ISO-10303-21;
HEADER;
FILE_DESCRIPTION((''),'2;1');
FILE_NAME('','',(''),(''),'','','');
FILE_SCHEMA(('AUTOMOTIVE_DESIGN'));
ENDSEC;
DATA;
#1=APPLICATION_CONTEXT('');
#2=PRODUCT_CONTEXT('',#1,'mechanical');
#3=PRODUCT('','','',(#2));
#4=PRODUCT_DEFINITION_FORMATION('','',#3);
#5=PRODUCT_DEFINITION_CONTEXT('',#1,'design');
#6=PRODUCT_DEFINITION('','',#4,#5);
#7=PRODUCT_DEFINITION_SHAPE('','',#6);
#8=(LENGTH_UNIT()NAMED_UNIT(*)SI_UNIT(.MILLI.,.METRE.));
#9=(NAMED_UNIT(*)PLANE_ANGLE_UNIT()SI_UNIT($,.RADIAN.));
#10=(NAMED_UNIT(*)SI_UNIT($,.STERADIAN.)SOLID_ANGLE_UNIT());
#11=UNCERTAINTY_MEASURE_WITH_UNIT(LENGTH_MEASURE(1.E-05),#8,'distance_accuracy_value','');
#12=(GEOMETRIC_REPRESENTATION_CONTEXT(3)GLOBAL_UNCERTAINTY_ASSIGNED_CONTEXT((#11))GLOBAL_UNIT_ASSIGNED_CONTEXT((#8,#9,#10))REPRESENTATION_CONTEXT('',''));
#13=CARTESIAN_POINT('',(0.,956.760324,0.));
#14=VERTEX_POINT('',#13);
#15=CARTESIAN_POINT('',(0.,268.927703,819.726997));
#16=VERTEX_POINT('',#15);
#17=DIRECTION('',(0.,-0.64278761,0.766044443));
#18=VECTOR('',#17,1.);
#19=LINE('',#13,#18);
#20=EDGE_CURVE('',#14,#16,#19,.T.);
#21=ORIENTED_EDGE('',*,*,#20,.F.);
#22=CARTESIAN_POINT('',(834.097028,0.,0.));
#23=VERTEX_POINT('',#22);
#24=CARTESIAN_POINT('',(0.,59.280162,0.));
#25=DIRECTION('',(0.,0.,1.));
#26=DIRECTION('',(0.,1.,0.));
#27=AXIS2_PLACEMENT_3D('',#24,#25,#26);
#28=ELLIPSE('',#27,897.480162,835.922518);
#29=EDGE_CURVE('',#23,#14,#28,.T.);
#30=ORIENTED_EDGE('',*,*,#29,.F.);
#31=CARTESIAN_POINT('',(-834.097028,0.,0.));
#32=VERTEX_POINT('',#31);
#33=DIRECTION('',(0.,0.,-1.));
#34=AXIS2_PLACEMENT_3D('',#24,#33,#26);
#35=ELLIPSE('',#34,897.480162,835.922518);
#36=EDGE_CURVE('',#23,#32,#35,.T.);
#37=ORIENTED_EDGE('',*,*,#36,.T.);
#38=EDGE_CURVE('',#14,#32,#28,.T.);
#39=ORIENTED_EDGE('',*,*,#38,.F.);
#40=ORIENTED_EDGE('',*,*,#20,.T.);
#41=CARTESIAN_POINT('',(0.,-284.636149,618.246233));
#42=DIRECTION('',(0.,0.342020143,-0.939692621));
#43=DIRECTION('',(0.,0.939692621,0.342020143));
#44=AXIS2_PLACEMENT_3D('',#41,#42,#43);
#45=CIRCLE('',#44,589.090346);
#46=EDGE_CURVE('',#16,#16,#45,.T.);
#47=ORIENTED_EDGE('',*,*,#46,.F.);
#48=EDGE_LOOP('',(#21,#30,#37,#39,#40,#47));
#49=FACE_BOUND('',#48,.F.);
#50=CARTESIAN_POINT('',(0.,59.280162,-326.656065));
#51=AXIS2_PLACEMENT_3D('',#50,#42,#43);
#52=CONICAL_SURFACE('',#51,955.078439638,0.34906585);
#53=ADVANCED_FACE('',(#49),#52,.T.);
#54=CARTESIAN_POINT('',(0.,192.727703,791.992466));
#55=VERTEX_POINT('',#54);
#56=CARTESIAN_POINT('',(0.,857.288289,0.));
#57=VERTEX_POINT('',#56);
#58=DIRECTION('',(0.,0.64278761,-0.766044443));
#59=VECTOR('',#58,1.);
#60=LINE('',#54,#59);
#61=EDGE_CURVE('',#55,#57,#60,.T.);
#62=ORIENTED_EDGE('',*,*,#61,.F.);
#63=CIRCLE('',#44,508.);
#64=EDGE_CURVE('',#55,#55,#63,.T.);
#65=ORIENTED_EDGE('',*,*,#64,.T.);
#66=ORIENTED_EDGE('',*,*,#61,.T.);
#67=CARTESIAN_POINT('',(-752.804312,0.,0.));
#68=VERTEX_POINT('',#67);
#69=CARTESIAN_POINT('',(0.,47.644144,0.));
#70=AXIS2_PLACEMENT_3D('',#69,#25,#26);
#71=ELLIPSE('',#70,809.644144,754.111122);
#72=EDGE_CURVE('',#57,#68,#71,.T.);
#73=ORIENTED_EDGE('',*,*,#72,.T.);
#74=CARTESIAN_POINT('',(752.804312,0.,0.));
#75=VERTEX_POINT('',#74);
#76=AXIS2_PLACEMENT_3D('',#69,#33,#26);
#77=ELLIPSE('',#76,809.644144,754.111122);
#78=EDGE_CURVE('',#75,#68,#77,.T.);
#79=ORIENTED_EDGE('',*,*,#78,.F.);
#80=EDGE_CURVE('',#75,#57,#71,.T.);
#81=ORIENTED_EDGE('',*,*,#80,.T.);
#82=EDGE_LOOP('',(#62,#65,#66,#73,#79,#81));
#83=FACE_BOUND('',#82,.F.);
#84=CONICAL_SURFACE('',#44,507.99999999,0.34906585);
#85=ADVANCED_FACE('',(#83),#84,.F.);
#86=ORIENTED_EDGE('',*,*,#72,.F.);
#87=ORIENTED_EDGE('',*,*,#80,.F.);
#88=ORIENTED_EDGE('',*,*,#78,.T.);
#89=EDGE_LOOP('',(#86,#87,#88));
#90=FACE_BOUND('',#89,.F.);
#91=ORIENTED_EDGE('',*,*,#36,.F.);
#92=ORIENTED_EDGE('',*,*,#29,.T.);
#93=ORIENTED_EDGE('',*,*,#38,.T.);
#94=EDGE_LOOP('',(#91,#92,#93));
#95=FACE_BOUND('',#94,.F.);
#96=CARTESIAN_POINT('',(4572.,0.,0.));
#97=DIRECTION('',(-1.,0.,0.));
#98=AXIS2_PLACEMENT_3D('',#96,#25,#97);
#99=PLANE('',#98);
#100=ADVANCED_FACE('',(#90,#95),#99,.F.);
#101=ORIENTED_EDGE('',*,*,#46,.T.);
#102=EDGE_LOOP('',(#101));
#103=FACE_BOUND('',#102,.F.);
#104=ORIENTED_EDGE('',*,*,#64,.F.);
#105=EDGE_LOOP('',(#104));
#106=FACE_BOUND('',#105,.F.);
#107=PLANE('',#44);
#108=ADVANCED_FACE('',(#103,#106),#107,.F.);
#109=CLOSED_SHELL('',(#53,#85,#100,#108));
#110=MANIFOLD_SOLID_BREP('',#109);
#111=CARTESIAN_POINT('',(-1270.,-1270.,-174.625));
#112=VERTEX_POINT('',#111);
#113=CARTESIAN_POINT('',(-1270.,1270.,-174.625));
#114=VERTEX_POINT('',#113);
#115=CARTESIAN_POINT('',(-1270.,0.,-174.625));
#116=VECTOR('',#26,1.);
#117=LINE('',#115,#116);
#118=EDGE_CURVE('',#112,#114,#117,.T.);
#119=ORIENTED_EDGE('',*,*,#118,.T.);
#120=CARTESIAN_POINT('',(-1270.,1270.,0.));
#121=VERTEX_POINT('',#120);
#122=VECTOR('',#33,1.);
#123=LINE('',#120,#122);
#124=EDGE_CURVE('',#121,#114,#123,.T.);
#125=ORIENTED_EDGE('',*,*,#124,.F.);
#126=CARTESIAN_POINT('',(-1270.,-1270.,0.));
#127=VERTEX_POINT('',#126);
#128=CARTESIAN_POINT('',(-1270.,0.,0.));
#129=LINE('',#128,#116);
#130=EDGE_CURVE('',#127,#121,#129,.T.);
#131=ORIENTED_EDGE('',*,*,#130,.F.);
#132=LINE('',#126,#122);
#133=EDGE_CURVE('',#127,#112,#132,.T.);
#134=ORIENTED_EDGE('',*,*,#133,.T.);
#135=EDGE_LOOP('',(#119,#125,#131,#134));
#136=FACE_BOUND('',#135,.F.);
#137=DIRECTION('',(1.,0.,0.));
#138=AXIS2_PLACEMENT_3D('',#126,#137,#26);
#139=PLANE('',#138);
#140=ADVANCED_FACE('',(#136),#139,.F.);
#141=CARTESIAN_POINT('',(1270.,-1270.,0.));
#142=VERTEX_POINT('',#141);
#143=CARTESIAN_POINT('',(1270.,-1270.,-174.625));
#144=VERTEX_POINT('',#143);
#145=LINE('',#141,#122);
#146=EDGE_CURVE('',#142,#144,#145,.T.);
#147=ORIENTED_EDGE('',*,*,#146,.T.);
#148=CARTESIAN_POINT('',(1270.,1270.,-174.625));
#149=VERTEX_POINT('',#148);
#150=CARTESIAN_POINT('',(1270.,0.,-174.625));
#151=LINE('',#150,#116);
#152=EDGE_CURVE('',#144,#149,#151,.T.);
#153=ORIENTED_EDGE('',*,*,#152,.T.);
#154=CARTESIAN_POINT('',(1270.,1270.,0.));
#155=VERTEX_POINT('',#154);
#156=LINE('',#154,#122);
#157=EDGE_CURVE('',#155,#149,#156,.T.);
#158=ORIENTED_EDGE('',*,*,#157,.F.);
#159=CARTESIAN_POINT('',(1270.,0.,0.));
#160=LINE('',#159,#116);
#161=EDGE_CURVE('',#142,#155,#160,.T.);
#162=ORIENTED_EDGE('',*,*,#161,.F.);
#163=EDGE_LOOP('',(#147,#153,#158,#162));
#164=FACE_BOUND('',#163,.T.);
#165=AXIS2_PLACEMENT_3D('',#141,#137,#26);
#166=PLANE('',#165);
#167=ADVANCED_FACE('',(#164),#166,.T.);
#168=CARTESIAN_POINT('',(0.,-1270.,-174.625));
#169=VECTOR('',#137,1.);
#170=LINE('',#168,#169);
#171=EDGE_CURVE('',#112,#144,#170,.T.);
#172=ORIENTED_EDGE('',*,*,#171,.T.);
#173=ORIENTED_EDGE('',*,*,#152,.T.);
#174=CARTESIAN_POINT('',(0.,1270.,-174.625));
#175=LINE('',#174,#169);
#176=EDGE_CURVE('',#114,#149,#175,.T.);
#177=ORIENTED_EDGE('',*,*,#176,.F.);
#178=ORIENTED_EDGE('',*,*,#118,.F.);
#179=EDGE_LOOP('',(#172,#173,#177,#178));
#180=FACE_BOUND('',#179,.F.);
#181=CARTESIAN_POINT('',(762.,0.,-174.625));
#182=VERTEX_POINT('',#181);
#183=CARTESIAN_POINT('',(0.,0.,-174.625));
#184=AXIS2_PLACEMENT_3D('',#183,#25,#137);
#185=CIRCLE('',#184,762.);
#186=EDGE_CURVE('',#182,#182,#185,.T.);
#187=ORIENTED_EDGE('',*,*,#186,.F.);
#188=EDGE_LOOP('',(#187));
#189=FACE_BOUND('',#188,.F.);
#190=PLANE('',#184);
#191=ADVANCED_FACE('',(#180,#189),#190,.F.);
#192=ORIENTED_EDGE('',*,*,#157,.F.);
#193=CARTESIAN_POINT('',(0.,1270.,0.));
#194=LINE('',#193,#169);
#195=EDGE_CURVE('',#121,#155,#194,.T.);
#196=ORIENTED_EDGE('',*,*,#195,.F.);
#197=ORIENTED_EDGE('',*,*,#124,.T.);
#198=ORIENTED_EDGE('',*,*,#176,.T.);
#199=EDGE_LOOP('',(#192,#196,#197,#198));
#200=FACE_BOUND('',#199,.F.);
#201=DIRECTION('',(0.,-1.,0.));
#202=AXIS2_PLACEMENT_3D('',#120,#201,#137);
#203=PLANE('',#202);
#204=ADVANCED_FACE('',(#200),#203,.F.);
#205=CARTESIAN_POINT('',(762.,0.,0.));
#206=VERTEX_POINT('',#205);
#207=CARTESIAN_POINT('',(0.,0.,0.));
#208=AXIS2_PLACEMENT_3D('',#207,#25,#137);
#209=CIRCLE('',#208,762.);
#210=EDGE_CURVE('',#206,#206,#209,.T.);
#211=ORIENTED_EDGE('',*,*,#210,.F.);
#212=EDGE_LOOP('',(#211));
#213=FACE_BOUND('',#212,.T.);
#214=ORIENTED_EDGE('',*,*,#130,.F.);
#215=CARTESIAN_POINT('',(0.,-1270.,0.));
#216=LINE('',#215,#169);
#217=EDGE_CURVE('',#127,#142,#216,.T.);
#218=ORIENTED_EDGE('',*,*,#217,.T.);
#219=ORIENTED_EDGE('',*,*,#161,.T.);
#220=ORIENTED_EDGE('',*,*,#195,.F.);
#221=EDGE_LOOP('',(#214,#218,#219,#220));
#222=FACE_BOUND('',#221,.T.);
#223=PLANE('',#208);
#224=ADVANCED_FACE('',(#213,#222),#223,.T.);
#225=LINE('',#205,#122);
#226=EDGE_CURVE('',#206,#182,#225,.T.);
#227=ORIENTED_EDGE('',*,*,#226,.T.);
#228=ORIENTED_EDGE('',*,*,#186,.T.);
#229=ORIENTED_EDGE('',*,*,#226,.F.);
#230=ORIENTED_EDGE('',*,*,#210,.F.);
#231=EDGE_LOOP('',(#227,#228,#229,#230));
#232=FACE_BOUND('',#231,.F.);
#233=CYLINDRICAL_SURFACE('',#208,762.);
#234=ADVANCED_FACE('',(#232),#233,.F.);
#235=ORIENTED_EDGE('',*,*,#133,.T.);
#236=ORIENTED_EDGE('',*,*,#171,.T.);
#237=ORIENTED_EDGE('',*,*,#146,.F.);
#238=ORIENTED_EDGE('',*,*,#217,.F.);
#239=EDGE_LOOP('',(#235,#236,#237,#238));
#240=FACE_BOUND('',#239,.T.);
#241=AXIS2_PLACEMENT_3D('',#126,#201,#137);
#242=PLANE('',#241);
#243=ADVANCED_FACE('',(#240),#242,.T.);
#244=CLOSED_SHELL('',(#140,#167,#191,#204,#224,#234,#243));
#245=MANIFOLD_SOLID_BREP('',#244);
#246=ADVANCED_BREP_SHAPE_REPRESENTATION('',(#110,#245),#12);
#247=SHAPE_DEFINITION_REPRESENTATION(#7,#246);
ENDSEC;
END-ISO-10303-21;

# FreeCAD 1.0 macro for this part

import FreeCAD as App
import Part
import Sketcher

V = App.Vector
Q = App.Units.Quantity


def add_polygon(sketch, points):
    """Adds a closed chain of lines whose ends are joined by coincident constraints."""
    first, n = sketch.GeometryCount, len(points)
    for a, b in zip(points, points[1:] + points[:1]):
        sketch.addGeometry(Part.LineSegment(App.Vector(*a, 0), App.Vector(*b, 0)), False)
    for i in range(n):
        sketch.addConstraint(Sketcher.Constraint("Coincident", first + i, 2, first + (i + 1) % n, 1))

doc = App.newDocument("Part")
params = doc.addObject("Spreadsheet::Sheet", "Params")
for row, (alias, value) in enumerate([
    ("revolution_angle", "360 deg"),
    ("sketch2_width", "300 in"),
    ("sketch2_height", "100 in"),
    ("sketch3_diameter", "60 in"),
    ("sketch3_width", "100 in"),
    ("pad1_length", "6.875 in"),
], start=1):
    params.set(f"A{row}", alias)
    params.set(f"B{row}", "=" + value)
    params.setAlias(f"B{row}", alias)

body = doc.addObject("PartDesign::Body", "Body")

# Sketch on YZ plane
sketch1 = body.newObject("Sketcher::SketchObject", "Sketch")
sketch1.AttachmentSupport = (doc.getObject("YZ_Plane"), [""])
sketch1.MapMode = "FlatFace"
add_polygon(sketch1, [(192.727703, 791.992466), (857.288289, 0), (956.760324, 0), (268.927703, 819.726997)])  # lines 0-3
sketch1.addGeometry(Part.LineSegment(V(-284.636149, 618.246233, 0), V(59.280162, -326.656065, 0)), True)  # axis
sketch1.addConstraint([
    Sketcher.Constraint("Horizontal", 1),
    Sketcher.Constraint("PointOnObject", 0, 2, -1),
    Sketcher.Constraint("Parallel", 0, 2),
    Sketcher.Constraint("Perpendicular", 3, 4),
    Sketcher.Constraint("Angle", 0, Q("-50 deg")),
    Sketcher.Constraint("Angle", 3, Q("-160 deg")),
    Sketcher.Constraint("DistanceX", 3, 2, 2, 2, Q("3 in")),
    Sketcher.Constraint("DistanceX", -1, 1, 0, 2, 857.288289),
    Sketcher.Constraint("DistanceX", 4, 1, -1, 1, 284.636149),
    Sketcher.Constraint("DistanceX", -1, 1, 4, 2, 59.280162),
    Sketcher.Constraint("DistanceX", 2, 2, 1, 2, 687.832621),
    Sketcher.Constraint("DistanceY", 4, 2, 3, 2, 1118.64853),
])
revolution = body.newObject("PartDesign::Revolution", "Revolution")
revolution.Profile = sketch1
revolution.ReferenceAxis = (sketch1, ["Axis0"])
revolution.setExpression("Angle", "Params.revolution_angle")

# Sketch on XZ plane
sketch2 = body.newObject("Sketcher::SketchObject", "Sketch001")
sketch2.AttachmentSupport = (doc.getObject("XZ_Plane"), [""])
sketch2.MapMode = "FlatFace"
add_polygon(sketch2, [(-3048, 0), (-3048, -2540), (4572, -2540), (4572, 0)])  # lines 0-3
sketch2.addConstraint([
    Sketcher.Constraint("Vertical", 0),
    Sketcher.Constraint("Horizontal", 1),
    Sketcher.Constraint("Vertical", 2),
    Sketcher.Constraint("Horizontal", 3),
    Sketcher.Constraint("PointOnObject", 2, 2, -1),
    Sketcher.Constraint("DistanceX", 1, 1, 1, 2, Q("300 in")),
    Sketcher.Constraint("DistanceY", 0, 2, 0, 1, Q("100 in")),
    Sketcher.Constraint("DistanceX", 0, 2, -1, 1, Q("120 in")),
])
sketch2.setExpression("Constraints[9]", "Params.sketch2_width")
sketch2.setExpression("Constraints[10]", "Params.sketch2_height")
pocket1 = body.newObject("PartDesign::Pocket", "Pocket")
pocket1.Profile = sketch2
pocket1.Type = "ThroughAll"
pocket1.Midplane = True
body2 = doc.addObject("PartDesign::Body", "Body001")

# Sketch on XY plane
sketch3 = body2.newObject("Sketcher::SketchObject", "Sketch002")
sketch3.AttachmentSupport = (doc.getObject("XY_Plane001"), [""])
sketch3.MapMode = "FlatFace"
add_polygon(sketch3, [(-1270, 1270), (-1270, -1270), (1270, -1270), (1270, 1270)])  # lines 0-3
sketch3.addGeometry(Part.Circle(V(0, 0, 0), V(0, 0, 1), 762), False)  # 4
sketch3.addConstraint([
    Sketcher.Constraint("Vertical", 0),
    Sketcher.Constraint("Horizontal", 1),
    Sketcher.Constraint("Vertical", 2),
    Sketcher.Constraint("Horizontal", 3),
    Sketcher.Constraint("Coincident", 4, 3, -1, 1),
    Sketcher.Constraint("Symmetric", 0, 2, 2, 2, -1, 1),
    Sketcher.Constraint("Equal", 3, 0),
    Sketcher.Constraint("Diameter", 4, Q("60 in")),
    Sketcher.Constraint("DistanceX", 1, 1, 1, 2, Q("100 in")),
])
sketch3.setExpression("Constraints[11]", "Params.sketch3_diameter")
sketch3.setExpression("Constraints[12]", "Params.sketch3_width")
pad1 = body2.newObject("PartDesign::Pad", "Pad")
pad1.Profile = sketch3
pad1.setExpression("Length", "Params.pad1_length")
pad1.Reversed = True

doc.recompute()
